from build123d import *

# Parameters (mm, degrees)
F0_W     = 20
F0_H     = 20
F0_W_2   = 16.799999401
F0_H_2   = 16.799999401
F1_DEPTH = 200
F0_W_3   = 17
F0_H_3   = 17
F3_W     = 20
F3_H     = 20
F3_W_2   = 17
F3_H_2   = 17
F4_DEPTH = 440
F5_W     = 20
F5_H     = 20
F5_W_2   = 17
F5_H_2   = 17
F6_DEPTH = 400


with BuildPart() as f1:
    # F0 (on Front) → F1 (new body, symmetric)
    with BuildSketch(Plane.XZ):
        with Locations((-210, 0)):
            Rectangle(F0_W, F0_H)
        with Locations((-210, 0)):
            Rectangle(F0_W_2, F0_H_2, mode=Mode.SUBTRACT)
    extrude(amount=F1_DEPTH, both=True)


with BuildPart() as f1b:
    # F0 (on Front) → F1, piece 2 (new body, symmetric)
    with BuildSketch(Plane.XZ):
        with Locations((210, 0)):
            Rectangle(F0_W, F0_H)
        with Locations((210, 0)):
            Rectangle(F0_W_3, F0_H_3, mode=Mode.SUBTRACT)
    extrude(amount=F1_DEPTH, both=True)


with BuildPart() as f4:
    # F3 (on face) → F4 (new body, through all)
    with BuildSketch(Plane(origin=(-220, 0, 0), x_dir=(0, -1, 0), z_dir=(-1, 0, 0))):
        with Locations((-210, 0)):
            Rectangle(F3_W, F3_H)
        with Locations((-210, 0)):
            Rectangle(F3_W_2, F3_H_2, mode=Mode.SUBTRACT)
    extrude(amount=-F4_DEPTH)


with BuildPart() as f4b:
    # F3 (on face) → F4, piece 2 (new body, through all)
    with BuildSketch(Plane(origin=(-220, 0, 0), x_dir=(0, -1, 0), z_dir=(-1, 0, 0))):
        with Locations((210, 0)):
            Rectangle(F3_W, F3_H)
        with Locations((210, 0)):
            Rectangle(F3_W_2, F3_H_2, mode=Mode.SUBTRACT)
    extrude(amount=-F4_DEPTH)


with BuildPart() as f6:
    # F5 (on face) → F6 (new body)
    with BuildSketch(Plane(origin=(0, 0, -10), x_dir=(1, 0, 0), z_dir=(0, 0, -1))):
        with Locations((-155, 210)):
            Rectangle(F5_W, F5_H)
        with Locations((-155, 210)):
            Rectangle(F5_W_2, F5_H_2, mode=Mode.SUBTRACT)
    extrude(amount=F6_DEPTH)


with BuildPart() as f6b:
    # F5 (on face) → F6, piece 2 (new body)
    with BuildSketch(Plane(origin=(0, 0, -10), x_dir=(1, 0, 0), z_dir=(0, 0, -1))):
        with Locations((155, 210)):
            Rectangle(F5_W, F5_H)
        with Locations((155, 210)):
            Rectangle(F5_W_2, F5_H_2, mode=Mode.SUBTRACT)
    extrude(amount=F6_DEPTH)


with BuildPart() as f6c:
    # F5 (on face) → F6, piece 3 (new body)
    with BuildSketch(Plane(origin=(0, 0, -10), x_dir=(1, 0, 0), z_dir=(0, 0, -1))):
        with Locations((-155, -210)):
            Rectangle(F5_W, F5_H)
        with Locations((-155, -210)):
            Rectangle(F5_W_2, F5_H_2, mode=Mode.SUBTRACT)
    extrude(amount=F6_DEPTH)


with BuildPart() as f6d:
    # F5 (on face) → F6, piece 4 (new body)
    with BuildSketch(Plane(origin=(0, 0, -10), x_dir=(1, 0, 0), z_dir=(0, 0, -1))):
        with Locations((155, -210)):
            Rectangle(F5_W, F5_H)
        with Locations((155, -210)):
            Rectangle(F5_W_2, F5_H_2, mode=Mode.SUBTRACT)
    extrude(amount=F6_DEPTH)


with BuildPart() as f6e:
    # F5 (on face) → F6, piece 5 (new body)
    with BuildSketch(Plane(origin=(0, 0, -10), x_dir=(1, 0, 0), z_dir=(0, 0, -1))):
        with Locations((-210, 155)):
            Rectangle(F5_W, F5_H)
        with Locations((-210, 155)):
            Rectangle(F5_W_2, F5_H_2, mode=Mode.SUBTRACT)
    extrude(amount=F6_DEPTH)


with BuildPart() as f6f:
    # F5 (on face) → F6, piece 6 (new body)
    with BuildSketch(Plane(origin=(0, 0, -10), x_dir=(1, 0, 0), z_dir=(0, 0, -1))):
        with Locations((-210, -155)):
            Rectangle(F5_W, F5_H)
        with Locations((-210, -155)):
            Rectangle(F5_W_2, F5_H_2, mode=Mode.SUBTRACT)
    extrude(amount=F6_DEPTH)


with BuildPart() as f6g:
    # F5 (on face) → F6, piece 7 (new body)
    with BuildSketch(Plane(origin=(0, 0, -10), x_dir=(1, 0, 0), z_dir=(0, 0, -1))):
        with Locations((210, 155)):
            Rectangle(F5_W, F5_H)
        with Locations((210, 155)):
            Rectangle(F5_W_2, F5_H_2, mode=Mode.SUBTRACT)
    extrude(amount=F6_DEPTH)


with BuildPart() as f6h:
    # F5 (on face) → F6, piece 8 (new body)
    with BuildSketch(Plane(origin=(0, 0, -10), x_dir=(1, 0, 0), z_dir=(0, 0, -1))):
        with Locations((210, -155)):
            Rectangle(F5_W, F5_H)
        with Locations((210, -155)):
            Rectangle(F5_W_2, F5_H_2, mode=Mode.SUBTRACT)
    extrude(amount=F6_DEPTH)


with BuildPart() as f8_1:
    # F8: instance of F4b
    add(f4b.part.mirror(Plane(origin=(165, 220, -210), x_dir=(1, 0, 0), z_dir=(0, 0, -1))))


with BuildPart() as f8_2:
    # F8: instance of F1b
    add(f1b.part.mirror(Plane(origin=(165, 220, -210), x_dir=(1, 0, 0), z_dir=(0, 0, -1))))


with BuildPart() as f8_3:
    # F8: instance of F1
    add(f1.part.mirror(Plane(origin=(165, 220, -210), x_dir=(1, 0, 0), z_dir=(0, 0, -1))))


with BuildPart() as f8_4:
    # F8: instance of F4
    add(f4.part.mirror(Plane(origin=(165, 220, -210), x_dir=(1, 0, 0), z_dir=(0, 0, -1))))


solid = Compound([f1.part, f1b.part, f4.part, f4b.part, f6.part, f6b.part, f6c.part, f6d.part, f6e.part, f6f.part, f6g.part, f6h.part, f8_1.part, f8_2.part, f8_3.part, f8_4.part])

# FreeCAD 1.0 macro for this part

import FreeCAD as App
import Part
import Sketcher
from FreeCAD import Vector

doc = App.newDocument("Part")
body = doc.addObject("PartDesign::Body", "Body")

# Sketch on XZ plane
sketch1 = body.newObject("Sketcher::SketchObject", "Sketch")
sketch1.AttachmentSupport = (doc.getObject("XZ_Plane"), [""])
sketch1.MapMode = "FlatFace"
sketch1.addGeometry([
    Part.LineSegment(Vector(-220, 10, 0), Vector(-220, -10, 0)),  # 0
    Part.LineSegment(Vector(-220, -10, 0), Vector(-200, -10, 0)),  # 1
    Part.LineSegment(Vector(-200, -10, 0), Vector(-200, 10, 0)),  # 2
    Part.LineSegment(Vector(-200, 10, 0), Vector(-220, 10, 0)),  # 3
    Part.LineSegment(Vector(-202, -8, 0), Vector(-218, -8, 0)),  # 4
    Part.LineSegment(Vector(-218, -8, 0), Vector(-218, 8, 0)),  # 5
    Part.LineSegment(Vector(-218, 8, 0), Vector(-202, 8, 0)),  # 6
    Part.LineSegment(Vector(-202, 8, 0), Vector(-202, -8, 0)),  # 7
], False)
sketch1.addConstraint([
    Sketcher.Constraint("Coincident", 0, 2, 1, 1),
    Sketcher.Constraint("Coincident", 1, 2, 2, 1),
    Sketcher.Constraint("Coincident", 2, 2, 3, 1),
    Sketcher.Constraint("Coincident", 3, 2, 0, 1),
    Sketcher.Constraint("Coincident", 4, 2, 5, 1),
    Sketcher.Constraint("Coincident", 5, 2, 6, 1),
    Sketcher.Constraint("Coincident", 6, 2, 7, 1),
    Sketcher.Constraint("Coincident", 7, 2, 4, 1),
    Sketcher.Constraint("Vertical", 0),
    Sketcher.Constraint("Horizontal", 1),
    Sketcher.Constraint("Vertical", 2),
    Sketcher.Constraint("Horizontal", 3),
    Sketcher.Constraint("Horizontal", 4),
    Sketcher.Constraint("Vertical", 5),
    Sketcher.Constraint("Horizontal", 6),
    Sketcher.Constraint("Vertical", 7),
    Sketcher.Constraint("Equal", 3, 0),
    Sketcher.Constraint("Equal", 6, 5),
    Sketcher.Constraint("DistanceX", 1, 1, 1, 2, 20.0),
    Sketcher.Constraint("DistanceX", 4, 2, 4, 1, 16.799999),
    Sketcher.Constraint("DistanceX", 0, 2, -1, 1, 220.0),
    Sketcher.Constraint("DistanceY", 0, 2, -1, 1, 10.0),
    Sketcher.Constraint("DistanceX", 4, 2, -1, 1, 218.4),
    Sketcher.Constraint("DistanceY", 4, 2, -1, 1, 8.4),
])
pad1 = body.newObject("PartDesign::Pad", "Pad")
pad1.Profile = sketch1
pad1.Length = 400
pad1.Midplane = True
body2 = doc.addObject("PartDesign::Body", "Body001")

# Sketch on XZ plane
sketch2 = body2.newObject("Sketcher::SketchObject", "Sketch001")
sketch2.AttachmentSupport = (doc.getObject("XZ_Plane001"), [""])
sketch2.MapMode = "FlatFace"
sketch2.addGeometry([
    Part.LineSegment(Vector(200, 10, 0), Vector(200, -10, 0)),  # 0
    Part.LineSegment(Vector(200, -10, 0), Vector(220, -10, 0)),  # 1
    Part.LineSegment(Vector(220, -10, 0), Vector(220, 10, 0)),  # 2
    Part.LineSegment(Vector(220, 10, 0), Vector(200, 10, 0)),  # 3
    Part.LineSegment(Vector(218, -8, 0), Vector(202, -8, 0)),  # 4
    Part.LineSegment(Vector(202, -8, 0), Vector(202, 8, 0)),  # 5
    Part.LineSegment(Vector(202, 8, 0), Vector(218, 8, 0)),  # 6
    Part.LineSegment(Vector(218, 8, 0), Vector(218, -8, 0)),  # 7
], False)
sketch2.addConstraint([
    Sketcher.Constraint("Coincident", 0, 2, 1, 1),
    Sketcher.Constraint("Coincident", 1, 2, 2, 1),
    Sketcher.Constraint("Coincident", 2, 2, 3, 1),
    Sketcher.Constraint("Coincident", 3, 2, 0, 1),
    Sketcher.Constraint("Coincident", 4, 2, 5, 1),
    Sketcher.Constraint("Coincident", 5, 2, 6, 1),
    Sketcher.Constraint("Coincident", 6, 2, 7, 1),
    Sketcher.Constraint("Coincident", 7, 2, 4, 1),
    Sketcher.Constraint("Vertical", 0),
    Sketcher.Constraint("Horizontal", 1),
    Sketcher.Constraint("Vertical", 2),
    Sketcher.Constraint("Horizontal", 3),
    Sketcher.Constraint("Horizontal", 4),
    Sketcher.Constraint("Vertical", 5),
    Sketcher.Constraint("Horizontal", 6),
    Sketcher.Constraint("Vertical", 7),
    Sketcher.Constraint("Equal", 3, 0),
    Sketcher.Constraint("Equal", 6, 5),
    Sketcher.Constraint("DistanceX", 1, 1, 1, 2, 20.0),
    Sketcher.Constraint("DistanceX", 4, 2, 4, 1, 17.0),
    Sketcher.Constraint("DistanceX", -1, 1, 0, 2, 200.0),
    Sketcher.Constraint("DistanceY", 0, 2, -1, 1, 10.0),
    Sketcher.Constraint("DistanceX", -1, 1, 4, 2, 201.5),
    Sketcher.Constraint("DistanceY", 4, 2, -1, 1, 8.5),
])
pad2 = body2.newObject("PartDesign::Pad", "Pad001")
pad2.Profile = sketch2
pad2.Length = 400
pad2.Midplane = True
body3 = doc.addObject("PartDesign::Body", "Body002")

# Sketch on YZ plane
sketch3 = body3.newObject("Sketcher::SketchObject", "Sketch002")
sketch3.AttachmentSupport = (doc.getObject("YZ_Plane002"), [""])
sketch3.MapMode = "FlatFace"
sketch3.AttachmentOffset = App.Placement(Vector(0, 0, -220), App.Rotation())
sketch3.addGeometry([
    Part.LineSegment(Vector(220, 10, 0), Vector(220, -10, 0)),  # 0
    Part.LineSegment(Vector(220, -10, 0), Vector(200, -10, 0)),  # 1
    Part.LineSegment(Vector(200, -10, 0), Vector(200, 10, 0)),  # 2
    Part.LineSegment(Vector(200, 10, 0), Vector(220, 10, 0)),  # 3
    Part.LineSegment(Vector(202, -8, 0), Vector(218, -8, 0)),  # 4
    Part.LineSegment(Vector(218, -8, 0), Vector(218, 8, 0)),  # 5
    Part.LineSegment(Vector(218, 8, 0), Vector(202, 8, 0)),  # 6
    Part.LineSegment(Vector(202, 8, 0), Vector(202, -8, 0)),  # 7
], False)
sketch3.addConstraint([
    Sketcher.Constraint("Coincident", 0, 2, 1, 1),
    Sketcher.Constraint("Coincident", 1, 2, 2, 1),
    Sketcher.Constraint("Coincident", 2, 2, 3, 1),
    Sketcher.Constraint("Coincident", 3, 2, 0, 1),
    Sketcher.Constraint("Coincident", 4, 2, 5, 1),
    Sketcher.Constraint("Coincident", 5, 2, 6, 1),
    Sketcher.Constraint("Coincident", 6, 2, 7, 1),
    Sketcher.Constraint("Coincident", 7, 2, 4, 1),
    Sketcher.Constraint("Vertical", 0),
    Sketcher.Constraint("Horizontal", 1),
    Sketcher.Constraint("Vertical", 2),
    Sketcher.Constraint("Horizontal", 3),
    Sketcher.Constraint("Horizontal", 4),
    Sketcher.Constraint("Vertical", 5),
    Sketcher.Constraint("Horizontal", 6),
    Sketcher.Constraint("Vertical", 7),
    Sketcher.Constraint("Equal", 3, 0),
    Sketcher.Constraint("Equal", 6, 5),
    Sketcher.Constraint("DistanceX", 1, 2, 1, 1, 20.0),
    Sketcher.Constraint("DistanceX", 4, 1, 4, 2, 17.0),
    Sketcher.Constraint("DistanceX", -1, 1, 0, 2, 220.0),
    Sketcher.Constraint("DistanceY", 0, 2, -1, 1, 10.0),
    Sketcher.Constraint("DistanceX", -1, 1, 4, 2, 218.5),
    Sketcher.Constraint("DistanceY", 4, 2, -1, 1, 8.5),
])
pad3 = body3.newObject("PartDesign::Pad", "Pad002")
pad3.Profile = sketch3
pad3.Length = 440
body4 = doc.addObject("PartDesign::Body", "Body003")

# Sketch on YZ plane
sketch4 = body4.newObject("Sketcher::SketchObject", "Sketch003")
sketch4.AttachmentSupport = (doc.getObject("YZ_Plane003"), [""])
sketch4.MapMode = "FlatFace"
sketch4.AttachmentOffset = App.Placement(Vector(0, 0, -220), App.Rotation())
sketch4.addGeometry([
    Part.LineSegment(Vector(-200, 10, 0), Vector(-200, -10, 0)),  # 0
    Part.LineSegment(Vector(-200, -10, 0), Vector(-220, -10, 0)),  # 1
    Part.LineSegment(Vector(-220, -10, 0), Vector(-220, 10, 0)),  # 2
    Part.LineSegment(Vector(-220, 10, 0), Vector(-200, 10, 0)),  # 3
    Part.LineSegment(Vector(-218, -8, 0), Vector(-202, -8, 0)),  # 4
    Part.LineSegment(Vector(-202, -8, 0), Vector(-202, 8, 0)),  # 5
    Part.LineSegment(Vector(-202, 8, 0), Vector(-218, 8, 0)),  # 6
    Part.LineSegment(Vector(-218, 8, 0), Vector(-218, -8, 0)),  # 7
], False)
sketch4.addConstraint([
    Sketcher.Constraint("Coincident", 0, 2, 1, 1),
    Sketcher.Constraint("Coincident", 1, 2, 2, 1),
    Sketcher.Constraint("Coincident", 2, 2, 3, 1),
    Sketcher.Constraint("Coincident", 3, 2, 0, 1),
    Sketcher.Constraint("Coincident", 4, 2, 5, 1),
    Sketcher.Constraint("Coincident", 5, 2, 6, 1),
    Sketcher.Constraint("Coincident", 6, 2, 7, 1),
    Sketcher.Constraint("Coincident", 7, 2, 4, 1),
    Sketcher.Constraint("Vertical", 0),
    Sketcher.Constraint("Horizontal", 1),
    Sketcher.Constraint("Vertical", 2),
    Sketcher.Constraint("Horizontal", 3),
    Sketcher.Constraint("Horizontal", 4),
    Sketcher.Constraint("Vertical", 5),
    Sketcher.Constraint("Horizontal", 6),
    Sketcher.Constraint("Vertical", 7),
    Sketcher.Constraint("Equal", 3, 0),
    Sketcher.Constraint("Equal", 6, 5),
    Sketcher.Constraint("DistanceX", 1, 2, 1, 1, 20.0),
    Sketcher.Constraint("DistanceX", 4, 1, 4, 2, 17.0),
    Sketcher.Constraint("DistanceX", 0, 2, -1, 1, 200.0),
    Sketcher.Constraint("DistanceY", 0, 2, -1, 1, 10.0),
    Sketcher.Constraint("DistanceX", 4, 2, -1, 1, 201.5),
    Sketcher.Constraint("DistanceY", 4, 2, -1, 1, 8.5),
])
pad4 = body4.newObject("PartDesign::Pad", "Pad003")
pad4.Profile = sketch4
pad4.Length = 440
body5 = doc.addObject("PartDesign::Body", "Body004")

# Sketch on XY plane
sketch5 = body5.newObject("Sketcher::SketchObject", "Sketch004")
sketch5.AttachmentSupport = (doc.getObject("XY_Plane004"), [""])
sketch5.MapMode = "FlatFace"
sketch5.AttachmentOffset = App.Placement(Vector(0, 0, -10), App.Rotation())
sketch5.addGeometry([
    Part.LineSegment(Vector(-165, -220, 0), Vector(-165, -200, 0)),  # 0
    Part.LineSegment(Vector(-165, -200, 0), Vector(-145, -200, 0)),  # 1
    Part.LineSegment(Vector(-145, -200, 0), Vector(-145, -220, 0)),  # 2
    Part.LineSegment(Vector(-145, -220, 0), Vector(-165, -220, 0)),  # 3
    Part.LineSegment(Vector(-146, -202, 0), Vector(-164, -202, 0)),  # 4
    Part.LineSegment(Vector(-164, -202, 0), Vector(-164, -218, 0)),  # 5
    Part.LineSegment(Vector(-164, -218, 0), Vector(-146, -218, 0)),  # 6
    Part.LineSegment(Vector(-146, -218, 0), Vector(-146, -202, 0)),  # 7
], False)
sketch5.addConstraint([
    Sketcher.Constraint("Coincident", 0, 2, 1, 1),
    Sketcher.Constraint("Coincident", 1, 2, 2, 1),
    Sketcher.Constraint("Coincident", 2, 2, 3, 1),
    Sketcher.Constraint("Coincident", 3, 2, 0, 1),
    Sketcher.Constraint("Coincident", 4, 2, 5, 1),
    Sketcher.Constraint("Coincident", 5, 2, 6, 1),
    Sketcher.Constraint("Coincident", 6, 2, 7, 1),
    Sketcher.Constraint("Coincident", 7, 2, 4, 1),
    Sketcher.Constraint("Vertical", 0),
    Sketcher.Constraint("Horizontal", 1),
    Sketcher.Constraint("Vertical", 2),
    Sketcher.Constraint("Horizontal", 3),
    Sketcher.Constraint("Horizontal", 4),
    Sketcher.Constraint("Vertical", 5),
    Sketcher.Constraint("Horizontal", 6),
    Sketcher.Constraint("Vertical", 7),
    Sketcher.Constraint("Equal", 3, 0),
    Sketcher.Constraint("Equal", 6, 5),
    Sketcher.Constraint("DistanceX", 1, 1, 1, 2, 20.0),
    Sketcher.Constraint("DistanceX", 4, 2, 4, 1, 17.0),
    Sketcher.Constraint("DistanceX", 0, 2, -1, 1, 165.0),
    Sketcher.Constraint("DistanceY", 0, 2, -1, 1, 200.0),
    Sketcher.Constraint("DistanceX", 4, 2, -1, 1, 163.5),
    Sketcher.Constraint("DistanceY", 4, 2, -1, 1, 201.5),
])
pad5 = body5.newObject("PartDesign::Pad", "Pad004")
pad5.Profile = sketch5
pad5.Length = 400
pad5.Reversed = True
body6 = doc.addObject("PartDesign::Body", "Body005")

# Sketch on XY plane
sketch6 = body6.newObject("Sketcher::SketchObject", "Sketch005")
sketch6.AttachmentSupport = (doc.getObject("XY_Plane005"), [""])
sketch6.MapMode = "FlatFace"
sketch6.AttachmentOffset = App.Placement(Vector(0, 0, -10), App.Rotation())
sketch6.addGeometry([
    Part.LineSegment(Vector(145, -220, 0), Vector(145, -200, 0)),  # 0
    Part.LineSegment(Vector(145, -200, 0), Vector(165, -200, 0)),  # 1
    Part.LineSegment(Vector(165, -200, 0), Vector(165, -220, 0)),  # 2
    Part.LineSegment(Vector(165, -220, 0), Vector(145, -220, 0)),  # 3
    Part.LineSegment(Vector(164, -202, 0), Vector(146, -202, 0)),  # 4
    Part.LineSegment(Vector(146, -202, 0), Vector(146, -218, 0)),  # 5
    Part.LineSegment(Vector(146, -218, 0), Vector(164, -218, 0)),  # 6
    Part.LineSegment(Vector(164, -218, 0), Vector(164, -202, 0)),  # 7
], False)
sketch6.addConstraint([
    Sketcher.Constraint("Coincident", 0, 2, 1, 1),
    Sketcher.Constraint("Coincident", 1, 2, 2, 1),
    Sketcher.Constraint("Coincident", 2, 2, 3, 1),
    Sketcher.Constraint("Coincident", 3, 2, 0, 1),
    Sketcher.Constraint("Coincident", 4, 2, 5, 1),
    Sketcher.Constraint("Coincident", 5, 2, 6, 1),
    Sketcher.Constraint("Coincident", 6, 2, 7, 1),
    Sketcher.Constraint("Coincident", 7, 2, 4, 1),
    Sketcher.Constraint("Vertical", 0),
    Sketcher.Constraint("Horizontal", 1),
    Sketcher.Constraint("Vertical", 2),
    Sketcher.Constraint("Horizontal", 3),
    Sketcher.Constraint("Horizontal", 4),
    Sketcher.Constraint("Vertical", 5),
    Sketcher.Constraint("Horizontal", 6),
    Sketcher.Constraint("Vertical", 7),
    Sketcher.Constraint("Equal", 3, 0),
    Sketcher.Constraint("Equal", 6, 5),
    Sketcher.Constraint("DistanceX", 1, 1, 1, 2, 20.0),
    Sketcher.Constraint("DistanceX", 4, 2, 4, 1, 17.0),
    Sketcher.Constraint("DistanceX", -1, 1, 0, 2, 145.0),
    Sketcher.Constraint("DistanceY", 0, 2, -1, 1, 200.0),
    Sketcher.Constraint("DistanceX", -1, 1, 4, 2, 146.5),
    Sketcher.Constraint("DistanceY", 4, 2, -1, 1, 201.5),
])
pad6 = body6.newObject("PartDesign::Pad", "Pad005")
pad6.Profile = sketch6
pad6.Length = 400
pad6.Reversed = True
body7 = doc.addObject("PartDesign::Body", "Body006")

# Sketch on XY plane
sketch7 = body7.newObject("Sketcher::SketchObject", "Sketch006")
sketch7.AttachmentSupport = (doc.getObject("XY_Plane006"), [""])
sketch7.MapMode = "FlatFace"
sketch7.AttachmentOffset = App.Placement(Vector(0, 0, -10), App.Rotation())
sketch7.addGeometry([
    Part.LineSegment(Vector(-165, 200, 0), Vector(-165, 220, 0)),  # 0
    Part.LineSegment(Vector(-165, 220, 0), Vector(-145, 220, 0)),  # 1
    Part.LineSegment(Vector(-145, 220, 0), Vector(-145, 200, 0)),  # 2
    Part.LineSegment(Vector(-145, 200, 0), Vector(-165, 200, 0)),  # 3
    Part.LineSegment(Vector(-146, 218, 0), Vector(-164, 218, 0)),  # 4
    Part.LineSegment(Vector(-164, 218, 0), Vector(-164, 202, 0)),  # 5
    Part.LineSegment(Vector(-164, 202, 0), Vector(-146, 202, 0)),  # 6
    Part.LineSegment(Vector(-146, 202, 0), Vector(-146, 218, 0)),  # 7
], False)
sketch7.addConstraint([
    Sketcher.Constraint("Coincident", 0, 2, 1, 1),
    Sketcher.Constraint("Coincident", 1, 2, 2, 1),
    Sketcher.Constraint("Coincident", 2, 2, 3, 1),
    Sketcher.Constraint("Coincident", 3, 2, 0, 1),
    Sketcher.Constraint("Coincident", 4, 2, 5, 1),
    Sketcher.Constraint("Coincident", 5, 2, 6, 1),
    Sketcher.Constraint("Coincident", 6, 2, 7, 1),
    Sketcher.Constraint("Coincident", 7, 2, 4, 1),
    Sketcher.Constraint("Vertical", 0),
    Sketcher.Constraint("Horizontal", 1),
    Sketcher.Constraint("Vertical", 2),
    Sketcher.Constraint("Horizontal", 3),
    Sketcher.Constraint("Horizontal", 4),
    Sketcher.Constraint("Vertical", 5),
    Sketcher.Constraint("Horizontal", 6),
    Sketcher.Constraint("Vertical", 7),
    Sketcher.Constraint("Equal", 3, 0),
    Sketcher.Constraint("Equal", 6, 5),
    Sketcher.Constraint("DistanceX", 1, 1, 1, 2, 20.0),
    Sketcher.Constraint("DistanceX", 4, 2, 4, 1, 17.0),
    Sketcher.Constraint("DistanceX", 0, 2, -1, 1, 165.0),
    Sketcher.Constraint("DistanceY", -1, 1, 0, 2, 220.0),
    Sketcher.Constraint("DistanceX", 4, 2, -1, 1, 163.5),
    Sketcher.Constraint("DistanceY", -1, 1, 4, 2, 218.5),
])
pad7 = body7.newObject("PartDesign::Pad", "Pad006")
pad7.Profile = sketch7
pad7.Length = 400
pad7.Reversed = True
body8 = doc.addObject("PartDesign::Body", "Body007")

# Sketch on XY plane
sketch8 = body8.newObject("Sketcher::SketchObject", "Sketch007")
sketch8.AttachmentSupport = (doc.getObject("XY_Plane007"), [""])
sketch8.MapMode = "FlatFace"
sketch8.AttachmentOffset = App.Placement(Vector(0, 0, -10), App.Rotation())
sketch8.addGeometry([
    Part.LineSegment(Vector(145, 200, 0), Vector(145, 220, 0)),  # 0
    Part.LineSegment(Vector(145, 220, 0), Vector(165, 220, 0)),  # 1
    Part.LineSegment(Vector(165, 220, 0), Vector(165, 200, 0)),  # 2
    Part.LineSegment(Vector(165, 200, 0), Vector(145, 200, 0)),  # 3
    Part.LineSegment(Vector(164, 218, 0), Vector(146, 218, 0)),  # 4
    Part.LineSegment(Vector(146, 218, 0), Vector(146, 202, 0)),  # 5
    Part.LineSegment(Vector(146, 202, 0), Vector(164, 202, 0)),  # 6
    Part.LineSegment(Vector(164, 202, 0), Vector(164, 218, 0)),  # 7
], False)
sketch8.addConstraint([
    Sketcher.Constraint("Coincident", 0, 2, 1, 1),
    Sketcher.Constraint("Coincident", 1, 2, 2, 1),
    Sketcher.Constraint("Coincident", 2, 2, 3, 1),
    Sketcher.Constraint("Coincident", 3, 2, 0, 1),
    Sketcher.Constraint("Coincident", 4, 2, 5, 1),
    Sketcher.Constraint("Coincident", 5, 2, 6, 1),
    Sketcher.Constraint("Coincident", 6, 2, 7, 1),
    Sketcher.Constraint("Coincident", 7, 2, 4, 1),
    Sketcher.Constraint("Vertical", 0),
    Sketcher.Constraint("Horizontal", 1),
    Sketcher.Constraint("Vertical", 2),
    Sketcher.Constraint("Horizontal", 3),
    Sketcher.Constraint("Horizontal", 4),
    Sketcher.Constraint("Vertical", 5),
    Sketcher.Constraint("Horizontal", 6),
    Sketcher.Constraint("Vertical", 7),
    Sketcher.Constraint("Equal", 3, 0),
    Sketcher.Constraint("Equal", 6, 5),
    Sketcher.Constraint("DistanceX", 1, 1, 1, 2, 20.0),
    Sketcher.Constraint("DistanceX", 4, 2, 4, 1, 17.0),
    Sketcher.Constraint("DistanceX", -1, 1, 0, 2, 145.0),
    Sketcher.Constraint("DistanceY", -1, 1, 0, 2, 220.0),
    Sketcher.Constraint("DistanceX", -1, 1, 4, 2, 146.5),
    Sketcher.Constraint("DistanceY", -1, 1, 4, 2, 218.5),
])
pad8 = body8.newObject("PartDesign::Pad", "Pad007")
pad8.Profile = sketch8
pad8.Length = 400
pad8.Reversed = True
body9 = doc.addObject("PartDesign::Body", "Body008")

# Sketch on XY plane
sketch9 = body9.newObject("Sketcher::SketchObject", "Sketch008")
sketch9.AttachmentSupport = (doc.getObject("XY_Plane008"), [""])
sketch9.MapMode = "FlatFace"
sketch9.AttachmentOffset = App.Placement(Vector(0, 0, -10), App.Rotation())
sketch9.addGeometry([
    Part.LineSegment(Vector(-220, -165, 0), Vector(-220, -145, 0)),  # 0
    Part.LineSegment(Vector(-220, -145, 0), Vector(-200, -145, 0)),  # 1
    Part.LineSegment(Vector(-200, -145, 0), Vector(-200, -165, 0)),  # 2
    Part.LineSegment(Vector(-200, -165, 0), Vector(-220, -165, 0)),  # 3
    Part.LineSegment(Vector(-202, -146, 0), Vector(-218, -146, 0)),  # 4
    Part.LineSegment(Vector(-218, -146, 0), Vector(-218, -164, 0)),  # 5
    Part.LineSegment(Vector(-218, -164, 0), Vector(-202, -164, 0)),  # 6
    Part.LineSegment(Vector(-202, -164, 0), Vector(-202, -146, 0)),  # 7
], False)
sketch9.addConstraint([
    Sketcher.Constraint("Coincident", 0, 2, 1, 1),
    Sketcher.Constraint("Coincident", 1, 2, 2, 1),
    Sketcher.Constraint("Coincident", 2, 2, 3, 1),
    Sketcher.Constraint("Coincident", 3, 2, 0, 1),
    Sketcher.Constraint("Coincident", 4, 2, 5, 1),
    Sketcher.Constraint("Coincident", 5, 2, 6, 1),
    Sketcher.Constraint("Coincident", 6, 2, 7, 1),
    Sketcher.Constraint("Coincident", 7, 2, 4, 1),
    Sketcher.Constraint("Vertical", 0),
    Sketcher.Constraint("Horizontal", 1),
    Sketcher.Constraint("Vertical", 2),
    Sketcher.Constraint("Horizontal", 3),
    Sketcher.Constraint("Horizontal", 4),
    Sketcher.Constraint("Vertical", 5),
    Sketcher.Constraint("Horizontal", 6),
    Sketcher.Constraint("Vertical", 7),
    Sketcher.Constraint("Equal", 3, 0),
    Sketcher.Constraint("Equal", 6, 5),
    Sketcher.Constraint("DistanceX", 1, 1, 1, 2, 20.0),
    Sketcher.Constraint("DistanceX", 4, 2, 4, 1, 17.0),
    Sketcher.Constraint("DistanceX", 0, 2, -1, 1, 220.0),
    Sketcher.Constraint("DistanceY", 0, 2, -1, 1, 145.0),
    Sketcher.Constraint("DistanceX", 4, 2, -1, 1, 218.5),
    Sketcher.Constraint("DistanceY", 4, 2, -1, 1, 146.5),
])
pad9 = body9.newObject("PartDesign::Pad", "Pad008")
pad9.Profile = sketch9
pad9.Length = 400
pad9.Reversed = True
body10 = doc.addObject("PartDesign::Body", "Body009")

# Sketch on XY plane
sketch10 = body10.newObject("Sketcher::SketchObject", "Sketch009")
sketch10.AttachmentSupport = (doc.getObject("XY_Plane009"), [""])
sketch10.MapMode = "FlatFace"
sketch10.AttachmentOffset = App.Placement(Vector(0, 0, -10), App.Rotation())
sketch10.addGeometry([
    Part.LineSegment(Vector(-220, 145, 0), Vector(-220, 165, 0)),  # 0
    Part.LineSegment(Vector(-220, 165, 0), Vector(-200, 165, 0)),  # 1
    Part.LineSegment(Vector(-200, 165, 0), Vector(-200, 145, 0)),  # 2
    Part.LineSegment(Vector(-200, 145, 0), Vector(-220, 145, 0)),  # 3
    Part.LineSegment(Vector(-202, 164, 0), Vector(-218, 164, 0)),  # 4
    Part.LineSegment(Vector(-218, 164, 0), Vector(-218, 146, 0)),  # 5
    Part.LineSegment(Vector(-218, 146, 0), Vector(-202, 146, 0)),  # 6
    Part.LineSegment(Vector(-202, 146, 0), Vector(-202, 164, 0)),  # 7
], False)
sketch10.addConstraint([
    Sketcher.Constraint("Coincident", 0, 2, 1, 1),
    Sketcher.Constraint("Coincident", 1, 2, 2, 1),
    Sketcher.Constraint("Coincident", 2, 2, 3, 1),
    Sketcher.Constraint("Coincident", 3, 2, 0, 1),
    Sketcher.Constraint("Coincident", 4, 2, 5, 1),
    Sketcher.Constraint("Coincident", 5, 2, 6, 1),
    Sketcher.Constraint("Coincident", 6, 2, 7, 1),
    Sketcher.Constraint("Coincident", 7, 2, 4, 1),
    Sketcher.Constraint("Vertical", 0),
    Sketcher.Constraint("Horizontal", 1),
    Sketcher.Constraint("Vertical", 2),
    Sketcher.Constraint("Horizontal", 3),
    Sketcher.Constraint("Horizontal", 4),
    Sketcher.Constraint("Vertical", 5),
    Sketcher.Constraint("Horizontal", 6),
    Sketcher.Constraint("Vertical", 7),
    Sketcher.Constraint("Equal", 3, 0),
    Sketcher.Constraint("Equal", 6, 5),
    Sketcher.Constraint("DistanceX", 1, 1, 1, 2, 20.0),
    Sketcher.Constraint("DistanceX", 4, 2, 4, 1, 17.0),
    Sketcher.Constraint("DistanceX", 0, 2, -1, 1, 220.0),
    Sketcher.Constraint("DistanceY", -1, 1, 0, 2, 165.0),
    Sketcher.Constraint("DistanceX", 4, 2, -1, 1, 218.5),
    Sketcher.Constraint("DistanceY", -1, 1, 4, 2, 163.5),
])
pad10 = body10.newObject("PartDesign::Pad", "Pad009")
pad10.Profile = sketch10
pad10.Length = 400
pad10.Reversed = True
body11 = doc.addObject("PartDesign::Body", "Body010")

# Sketch on XY plane
sketch11 = body11.newObject("Sketcher::SketchObject", "Sketch010")
sketch11.AttachmentSupport = (doc.getObject("XY_Plane010"), [""])
sketch11.MapMode = "FlatFace"
sketch11.AttachmentOffset = App.Placement(Vector(0, 0, -10), App.Rotation())
sketch11.addGeometry([
    Part.LineSegment(Vector(200, -165, 0), Vector(200, -145, 0)),  # 0
    Part.LineSegment(Vector(200, -145, 0), Vector(220, -145, 0)),  # 1
    Part.LineSegment(Vector(220, -145, 0), Vector(220, -165, 0)),  # 2
    Part.LineSegment(Vector(220, -165, 0), Vector(200, -165, 0)),  # 3
    Part.LineSegment(Vector(218, -146, 0), Vector(202, -146, 0)),  # 4
    Part.LineSegment(Vector(202, -146, 0), Vector(202, -164, 0)),  # 5
    Part.LineSegment(Vector(202, -164, 0), Vector(218, -164, 0)),  # 6
    Part.LineSegment(Vector(218, -164, 0), Vector(218, -146, 0)),  # 7
], False)
sketch11.addConstraint([
    Sketcher.Constraint("Coincident", 0, 2, 1, 1),
    Sketcher.Constraint("Coincident", 1, 2, 2, 1),
    Sketcher.Constraint("Coincident", 2, 2, 3, 1),
    Sketcher.Constraint("Coincident", 3, 2, 0, 1),
    Sketcher.Constraint("Coincident", 4, 2, 5, 1),
    Sketcher.Constraint("Coincident", 5, 2, 6, 1),
    Sketcher.Constraint("Coincident", 6, 2, 7, 1),
    Sketcher.Constraint("Coincident", 7, 2, 4, 1),
    Sketcher.Constraint("Vertical", 0),
    Sketcher.Constraint("Horizontal", 1),
    Sketcher.Constraint("Vertical", 2),
    Sketcher.Constraint("Horizontal", 3),
    Sketcher.Constraint("Horizontal", 4),
    Sketcher.Constraint("Vertical", 5),
    Sketcher.Constraint("Horizontal", 6),
    Sketcher.Constraint("Vertical", 7),
    Sketcher.Constraint("Equal", 3, 0),
    Sketcher.Constraint("Equal", 6, 5),
    Sketcher.Constraint("DistanceX", 1, 1, 1, 2, 20.0),
    Sketcher.Constraint("DistanceX", 4, 2, 4, 1, 17.0),
    Sketcher.Constraint("DistanceX", -1, 1, 0, 2, 200.0),
    Sketcher.Constraint("DistanceY", 0, 2, -1, 1, 145.0),
    Sketcher.Constraint("DistanceX", -1, 1, 4, 2, 201.5),
    Sketcher.Constraint("DistanceY", 4, 2, -1, 1, 146.5),
])
pad11 = body11.newObject("PartDesign::Pad", "Pad010")
pad11.Profile = sketch11
pad11.Length = 400
pad11.Reversed = True
body12 = doc.addObject("PartDesign::Body", "Body011")

# Sketch on XY plane
sketch12 = body12.newObject("Sketcher::SketchObject", "Sketch011")
sketch12.AttachmentSupport = (doc.getObject("XY_Plane011"), [""])
sketch12.MapMode = "FlatFace"
sketch12.AttachmentOffset = App.Placement(Vector(0, 0, -10), App.Rotation())
sketch12.addGeometry([
    Part.LineSegment(Vector(200, 145, 0), Vector(200, 165, 0)),  # 0
    Part.LineSegment(Vector(200, 165, 0), Vector(220, 165, 0)),  # 1
    Part.LineSegment(Vector(220, 165, 0), Vector(220, 145, 0)),  # 2
    Part.LineSegment(Vector(220, 145, 0), Vector(200, 145, 0)),  # 3
    Part.LineSegment(Vector(218, 164, 0), Vector(202, 164, 0)),  # 4
    Part.LineSegment(Vector(202, 164, 0), Vector(202, 146, 0)),  # 5
    Part.LineSegment(Vector(202, 146, 0), Vector(218, 146, 0)),  # 6
    Part.LineSegment(Vector(218, 146, 0), Vector(218, 164, 0)),  # 7
], False)
sketch12.addConstraint([
    Sketcher.Constraint("Coincident", 0, 2, 1, 1),
    Sketcher.Constraint("Coincident", 1, 2, 2, 1),
    Sketcher.Constraint("Coincident", 2, 2, 3, 1),
    Sketcher.Constraint("Coincident", 3, 2, 0, 1),
    Sketcher.Constraint("Coincident", 4, 2, 5, 1),
    Sketcher.Constraint("Coincident", 5, 2, 6, 1),
    Sketcher.Constraint("Coincident", 6, 2, 7, 1),
    Sketcher.Constraint("Coincident", 7, 2, 4, 1),
    Sketcher.Constraint("Vertical", 0),
    Sketcher.Constraint("Horizontal", 1),
    Sketcher.Constraint("Vertical", 2),
    Sketcher.Constraint("Horizontal", 3),
    Sketcher.Constraint("Horizontal", 4),
    Sketcher.Constraint("Vertical", 5),
    Sketcher.Constraint("Horizontal", 6),
    Sketcher.Constraint("Vertical", 7),
    Sketcher.Constraint("Equal", 3, 0),
    Sketcher.Constraint("Equal", 6, 5),
    Sketcher.Constraint("DistanceX", 1, 1, 1, 2, 20.0),
    Sketcher.Constraint("DistanceX", 4, 2, 4, 1, 17.0),
    Sketcher.Constraint("DistanceX", -1, 1, 0, 2, 200.0),
    Sketcher.Constraint("DistanceY", -1, 1, 0, 2, 165.0),
    Sketcher.Constraint("DistanceX", -1, 1, 4, 2, 201.5),
    Sketcher.Constraint("DistanceY", -1, 1, 4, 2, 163.5),
])
pad12 = body12.newObject("PartDesign::Pad", "Pad011")
pad12.Profile = sketch12
pad12.Length = 400
pad12.Reversed = True
body13 = doc.addObject("PartDesign::Body", "Body012")
doc.recompute()

mirroring = doc.addObject("Part::Mirroring", "Mirroring")
mirroring.Source = body4
mirroring.Base = Vector(165, 220, -210)
mirroring.Normal = Vector(0, 0, -1)
body13.BaseFeature = mirroring
doc.recompute()
body14 = doc.addObject("PartDesign::Body", "Body013")
doc.recompute()

mirroring2 = doc.addObject("Part::Mirroring", "Mirroring001")
mirroring2.Source = body2
mirroring2.Base = Vector(165, 220, -210)
mirroring2.Normal = Vector(0, 0, -1)
body14.BaseFeature = mirroring2
doc.recompute()
body15 = doc.addObject("PartDesign::Body", "Body014")
doc.recompute()

mirroring3 = doc.addObject("Part::Mirroring", "Mirroring002")
mirroring3.Source = body
mirroring3.Base = Vector(165, 220, -210)
mirroring3.Normal = Vector(0, 0, -1)
body15.BaseFeature = mirroring3
doc.recompute()
body16 = doc.addObject("PartDesign::Body", "Body015")
doc.recompute()

mirroring4 = doc.addObject("Part::Mirroring", "Mirroring003")
mirroring4.Source = body3
mirroring4.Base = Vector(165, 220, -210)
mirroring4.Normal = Vector(0, 0, -1)
body16.BaseFeature = mirroring4
doc.recompute()
mirroring.Visibility = False
mirroring2.Visibility = False
mirroring3.Visibility = False
mirroring4.Visibility = False

doc.recompute()
